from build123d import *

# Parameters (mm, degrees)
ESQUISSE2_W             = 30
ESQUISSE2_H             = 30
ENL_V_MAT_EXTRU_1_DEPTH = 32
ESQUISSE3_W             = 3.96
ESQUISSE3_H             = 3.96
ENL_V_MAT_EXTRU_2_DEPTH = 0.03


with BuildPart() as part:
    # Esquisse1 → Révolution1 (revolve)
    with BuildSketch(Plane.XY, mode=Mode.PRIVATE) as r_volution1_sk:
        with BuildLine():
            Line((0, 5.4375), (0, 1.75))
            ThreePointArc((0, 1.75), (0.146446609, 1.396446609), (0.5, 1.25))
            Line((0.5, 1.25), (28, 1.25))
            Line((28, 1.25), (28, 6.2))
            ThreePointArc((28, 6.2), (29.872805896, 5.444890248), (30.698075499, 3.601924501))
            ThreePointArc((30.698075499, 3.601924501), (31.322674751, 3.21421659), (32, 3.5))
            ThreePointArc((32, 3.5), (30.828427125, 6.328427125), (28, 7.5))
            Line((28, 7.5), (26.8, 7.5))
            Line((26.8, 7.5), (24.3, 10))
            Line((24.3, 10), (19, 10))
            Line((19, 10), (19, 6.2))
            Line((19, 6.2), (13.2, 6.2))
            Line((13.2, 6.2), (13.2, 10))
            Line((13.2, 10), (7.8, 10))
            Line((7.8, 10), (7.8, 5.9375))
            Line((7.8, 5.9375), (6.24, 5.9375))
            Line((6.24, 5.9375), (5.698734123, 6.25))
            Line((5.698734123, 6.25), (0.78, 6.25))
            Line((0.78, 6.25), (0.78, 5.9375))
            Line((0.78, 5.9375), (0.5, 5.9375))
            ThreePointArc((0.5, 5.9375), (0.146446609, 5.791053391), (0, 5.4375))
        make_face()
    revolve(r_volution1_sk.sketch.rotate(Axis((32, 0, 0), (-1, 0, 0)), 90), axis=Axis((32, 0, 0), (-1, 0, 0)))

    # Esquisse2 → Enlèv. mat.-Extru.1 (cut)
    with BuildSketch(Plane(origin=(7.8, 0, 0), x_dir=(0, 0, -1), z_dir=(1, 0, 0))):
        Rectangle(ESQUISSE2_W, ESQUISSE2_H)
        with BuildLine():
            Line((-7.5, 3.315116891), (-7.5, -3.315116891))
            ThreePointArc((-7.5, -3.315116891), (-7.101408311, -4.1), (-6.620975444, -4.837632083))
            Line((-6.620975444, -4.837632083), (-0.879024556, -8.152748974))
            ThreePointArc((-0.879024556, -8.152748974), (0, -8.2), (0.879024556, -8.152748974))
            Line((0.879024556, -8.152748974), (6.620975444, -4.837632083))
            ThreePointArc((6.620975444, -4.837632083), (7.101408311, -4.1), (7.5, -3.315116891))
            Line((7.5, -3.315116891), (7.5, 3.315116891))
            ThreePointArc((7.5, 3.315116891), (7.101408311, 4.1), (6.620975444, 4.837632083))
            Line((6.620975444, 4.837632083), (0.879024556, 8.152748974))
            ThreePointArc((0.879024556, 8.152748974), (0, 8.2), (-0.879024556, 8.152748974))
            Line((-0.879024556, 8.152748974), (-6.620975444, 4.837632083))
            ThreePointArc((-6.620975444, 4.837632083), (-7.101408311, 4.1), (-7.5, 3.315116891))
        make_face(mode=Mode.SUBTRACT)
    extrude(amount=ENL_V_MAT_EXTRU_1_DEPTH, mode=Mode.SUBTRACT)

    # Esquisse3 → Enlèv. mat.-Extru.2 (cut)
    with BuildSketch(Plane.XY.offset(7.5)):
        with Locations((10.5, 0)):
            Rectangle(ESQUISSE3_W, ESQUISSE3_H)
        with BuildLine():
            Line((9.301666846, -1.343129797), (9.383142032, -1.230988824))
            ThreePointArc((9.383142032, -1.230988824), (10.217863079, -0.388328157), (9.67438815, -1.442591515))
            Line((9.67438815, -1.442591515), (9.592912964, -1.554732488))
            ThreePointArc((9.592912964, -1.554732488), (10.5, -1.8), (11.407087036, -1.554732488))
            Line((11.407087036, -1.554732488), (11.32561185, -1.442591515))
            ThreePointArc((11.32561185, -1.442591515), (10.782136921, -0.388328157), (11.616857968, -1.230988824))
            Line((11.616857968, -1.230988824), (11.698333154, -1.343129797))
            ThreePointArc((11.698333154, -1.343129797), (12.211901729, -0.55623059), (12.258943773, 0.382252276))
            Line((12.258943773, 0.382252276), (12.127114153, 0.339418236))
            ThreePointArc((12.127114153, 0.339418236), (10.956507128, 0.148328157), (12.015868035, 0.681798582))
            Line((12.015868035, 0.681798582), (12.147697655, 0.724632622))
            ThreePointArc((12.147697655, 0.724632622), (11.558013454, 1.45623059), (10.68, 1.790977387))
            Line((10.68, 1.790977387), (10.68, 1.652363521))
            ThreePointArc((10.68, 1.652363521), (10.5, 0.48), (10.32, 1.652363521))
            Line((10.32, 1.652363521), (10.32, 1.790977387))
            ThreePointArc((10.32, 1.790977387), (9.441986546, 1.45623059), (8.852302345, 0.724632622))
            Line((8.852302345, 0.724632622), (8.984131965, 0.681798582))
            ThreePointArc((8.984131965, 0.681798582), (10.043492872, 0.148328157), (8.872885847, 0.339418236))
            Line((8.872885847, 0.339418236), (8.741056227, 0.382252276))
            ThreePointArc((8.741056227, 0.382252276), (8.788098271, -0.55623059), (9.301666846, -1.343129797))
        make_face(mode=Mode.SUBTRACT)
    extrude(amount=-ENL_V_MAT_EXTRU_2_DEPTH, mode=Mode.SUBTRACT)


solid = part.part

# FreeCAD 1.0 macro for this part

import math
import FreeCAD as App
import Part
import Sketcher

V = App.Vector
Q = App.Units.Quantity


def add_polygon(sketch, points):
    """Adds a closed chain of lines whose ends are joined by coincident constraints."""
    first, n = sketch.GeometryCount, len(points)
    for a, b in zip(points, points[1:] + points[:1]):
        sketch.addGeometry(Part.LineSegment(App.Vector(*a, 0), App.Vector(*b, 0)), False)
    for i in range(n):
        sketch.addConstraint(Sketcher.Constraint("Coincident", first + i, 2, first + (i + 1) % n, 1))

doc = App.newDocument("Part")
params = doc.addObject("Spreadsheet::Sheet", "Params")
for row, (alias, value) in enumerate([
    ("sketch1_radius", "4 mm"),
    ("sketch1_radius2", "0.5 mm"),
    ("sketch1_radius3", "2.7 mm"),
    ("sketch1_radius4", "0.8 mm"),
    ("sketch1_width", "27.5 mm"),
    ("revolution_angle", "360 deg"),
    ("sketch2_radius", "8.2 mm"),
    ("sketch2_width", "30 mm"),
    ("pocket1_length", "32 mm"),
    ("sketch3_radius", "1.8 mm"),
    ("sketch3_radius2", "0.6 mm"),
    ("sketch3_width", "3.96 mm"),
    ("pocket2_length", "0.03 mm"),
], start=1):
    params.set(f"A{row}", alias)
    params.set(f"B{row}", "=" + value)
    params.setAlias(f"B{row}", alias)

body = doc.addObject("PartDesign::Body", "Body")

sketch1 = body.newObject("Sketcher::SketchObject", "Sketch")
sketch1.AttachmentSupport = (doc.getObject("XY_Plane"), [""])
sketch1.MapMode = "FlatFace"
sketch1.addGeometry([
    Part.LineSegment(V(0, 5.4375, 0), V(0, 1.75, 0)),
    Part.ArcOfCircle(Part.Circle(V(0.5, 1.75, 0), V(0, 0, 1), 0.5), math.radians(180), math.radians(270)),
    Part.LineSegment(V(0.5, 1.25, 0), V(28, 1.25, 0)),
    Part.LineSegment(V(28, 1.25, 0), V(28, 6.2, 0)),
    Part.ArcOfCircle(Part.Circle(V(28, 3.5, 0), V(0, 0, 1), 2.7), math.radians(2.163419), math.radians(90)),
    Part.ArcOfCircle(Part.Circle(V(31.385114, 4.011776, 0), V(0, 0, 1), 0.8), math.radians(-149.181869), math.radians(-39.770965)),
    Part.ArcOfCircle(Part.Circle(V(28, 3.5, 0), V(0, 0, 1), 4), math.radians(0), math.radians(90)),
    Part.LineSegment(V(28, 7.5, 0), V(26.8, 7.5, 0)),
    Part.LineSegment(V(26.8, 7.5, 0), V(24.3, 10, 0)),
    Part.LineSegment(V(24.3, 10, 0), V(19, 10, 0)),
    Part.LineSegment(V(19, 10, 0), V(19, 6.2, 0)),
    Part.LineSegment(V(19, 6.2, 0), V(13.2, 6.2, 0)),
    Part.LineSegment(V(13.2, 6.2, 0), V(13.2, 10, 0)),
    Part.LineSegment(V(13.2, 10, 0), V(7.8, 10, 0)),
    Part.LineSegment(V(7.8, 10, 0), V(7.8, 5.9375, 0)),
    Part.LineSegment(V(7.8, 5.9375, 0), V(6.24, 5.9375, 0)),
    Part.LineSegment(V(6.24, 5.9375, 0), V(5.698734, 6.25, 0)),
    Part.LineSegment(V(5.698734, 6.25, 0), V(0.78, 6.25, 0)),
    Part.LineSegment(V(0.78, 6.25, 0), V(0.78, 5.9375, 0)),
    Part.LineSegment(V(0.78, 5.9375, 0), V(0.5, 5.9375, 0)),
    Part.ArcOfCircle(Part.Circle(V(0.5, 5.4375, 0), V(0, 0, 1), 0.5), math.radians(90), math.radians(180)),
], False)
sketch1.addConstraint([
    Sketcher.Constraint("Tangent", 0, 2, 1, 1),
    Sketcher.Constraint("Tangent", 1, 2, 2, 1),
    Sketcher.Constraint("Coincident", 2, 2, 3, 1),
    Sketcher.Constraint("Coincident", 3, 2, 4, 2),
    Sketcher.Constraint("Coincident", 4, 1, 5, 1),
    Sketcher.Constraint("Coincident", 5, 2, 6, 1),
    Sketcher.Constraint("Tangent", 6, 2, 7, 1),
    Sketcher.Constraint("Coincident", 7, 2, 8, 1),
    Sketcher.Constraint("Coincident", 8, 2, 9, 1),
    Sketcher.Constraint("Coincident", 9, 2, 10, 1),
    Sketcher.Constraint("Coincident", 10, 2, 11, 1),
    Sketcher.Constraint("Coincident", 11, 2, 12, 1),
    Sketcher.Constraint("Coincident", 12, 2, 13, 1),
    Sketcher.Constraint("Coincident", 13, 2, 14, 1),
    Sketcher.Constraint("Coincident", 14, 2, 15, 1),
    Sketcher.Constraint("Coincident", 15, 2, 16, 1),
    Sketcher.Constraint("Coincident", 16, 2, 17, 1),
    Sketcher.Constraint("Coincident", 17, 2, 18, 1),
    Sketcher.Constraint("Coincident", 18, 2, 19, 1),
    Sketcher.Constraint("Tangent", 19, 2, 20, 1),
    Sketcher.Constraint("Tangent", 20, 2, 0, 1),
    Sketcher.Constraint("Vertical", 0),
    Sketcher.Constraint("Horizontal", 2),
    Sketcher.Constraint("Vertical", 3),
    Sketcher.Constraint("Horizontal", 7),
    Sketcher.Constraint("Horizontal", 9),
    Sketcher.Constraint("Vertical", 10),
    Sketcher.Constraint("Horizontal", 11),
    Sketcher.Constraint("Vertical", 12),
    Sketcher.Constraint("Horizontal", 13),
    Sketcher.Constraint("Vertical", 14),
    Sketcher.Constraint("Horizontal", 15),
    Sketcher.Constraint("Horizontal", 17),
    Sketcher.Constraint("Vertical", 18),
    Sketcher.Constraint("Horizontal", 19),
    Sketcher.Constraint("Coincident", 6, 3, 4, 3),
    Sketcher.Constraint("Equal", 1, 20),
    Sketcher.Constraint("PointOnObject", 0, 2, -2),
    Sketcher.Constraint("Horizontal", 6, 3, 5, 2),
    Sketcher.Constraint("Horizontal", 3, 2, 10, 2),
    Sketcher.Constraint("Horizontal", 9, 2, 12, 2),
    Sketcher.Constraint("Horizontal", 15, 2, 18, 2),
    Sketcher.Constraint("Vertical", 6, 3, 2, 2),
    Sketcher.Constraint("Radius", 6, 4.0),
    Sketcher.Constraint("Radius", 1, 0.5),
    Sketcher.Constraint("Radius", 4, 2.7),
    Sketcher.Constraint("Radius", 5, 0.8),
    Sketcher.Constraint("Angle", 8, Q("135 deg")),
    Sketcher.Constraint("Angle", 16, Q("150 deg")),
    Sketcher.Constraint("DistanceX", 2, 1, 2, 2, 27.5),
    Sketcher.Constraint("DistanceX", 7, 2, 7, 1, 1.2),
    Sketcher.Constraint("DistanceX", 9, 2, 9, 1, 5.3),
    Sketcher.Constraint("DistanceX", 11, 2, 11, 1, 5.8),
    Sketcher.Constraint("DistanceX", 13, 2, 13, 1, 5.4),
    Sketcher.Constraint("DistanceY", 10, 2, 10, 1, 3.8),
    Sketcher.Constraint("DistanceY", -1, 1, 8, 2, 10.0),
    Sketcher.Constraint("DistanceY", 1, 2, 17, 2, 5.0),
    Sketcher.Constraint("DistanceX", 15, 2, 15, 1, 1.56),
    Sketcher.Constraint("DistanceX", 19, 2, 19, 1, 0.28),
    Sketcher.Constraint("DistanceY", 3, 1, 3, 2, 4.95),
    Sketcher.Constraint("Distance", 16, 0.625),
    Sketcher.Constraint("DistanceX", 4, 1, 5, 3, 0.687038),
])
sketch1.setExpression("Constraints[43]", "Params.sketch1_radius")
sketch1.setExpression("Constraints[44]", "Params.sketch1_radius2")
sketch1.setExpression("Constraints[45]", "Params.sketch1_radius3")
sketch1.setExpression("Constraints[46]", "Params.sketch1_radius4")
sketch1.setExpression("Constraints[49]", "Params.sketch1_width")
revolution = body.newObject("PartDesign::Revolution", "Revolution")
revolution.Profile = sketch1
revolution.ReferenceAxis = (sketch1, ["H_Axis"])
revolution.setExpression("Angle", "Params.revolution_angle")

sketch2 = body.newObject("Sketcher::SketchObject", "Sketch001")
sketch2.AttachmentSupport = (doc.getObject("YZ_Plane"), [""])
sketch2.MapMode = "FlatFace"
sketch2.AttachmentOffset = App.Placement(V(0, 0, 7.8), App.Rotation())
add_polygon(sketch2, [(15, 15), (-15, 15), (-15, -15), (15, -15)])
sketch2.addGeometry(Part.LineSegment(V(-3.315117, 7.5, 0), V(3.315117, 7.5, 0)), False)
sketch2.addGeometry(Part.ArcOfCircle(Part.Circle(V(0, 0, 0), V(0, 0, 1), 8.2), math.radians(53.846176), math.radians(66.153824)), False)
sketch2.addGeometry(Part.LineSegment(V(4.837632, 6.620975, 0), V(8.152749, 0.879025, 0)), False)
sketch2.addGeometry(Part.ArcOfCircle(Part.Circle(V(0, 0, 0), V(0, 0, 1), 8.2), math.radians(-6.153824), math.radians(6.153824)), False)
sketch2.addGeometry(Part.LineSegment(V(8.152749, -0.879025, 0), V(4.837632, -6.620975, 0)), False)
sketch2.addGeometry(Part.ArcOfCircle(Part.Circle(V(0, 0, 0), V(0, 0, 1), 8.2), math.radians(-66.153824), math.radians(-53.846176)), False)
sketch2.addGeometry(Part.LineSegment(V(3.315117, -7.5, 0), V(-3.315117, -7.5, 0)), False)
sketch2.addGeometry(Part.ArcOfCircle(Part.Circle(V(0, 0, 0), V(0, 0, 1), 8.2), math.radians(-126.153824), math.radians(-113.846176)), False)
sketch2.addGeometry(Part.LineSegment(V(-4.837632, -6.620975, 0), V(-8.152749, -0.879025, 0)), False)
sketch2.addGeometry(Part.ArcOfCircle(Part.Circle(V(0, 0, 0), V(0, 0, 1), 8.2), math.radians(173.846176), math.radians(186.153824)), False)
sketch2.addGeometry(Part.LineSegment(V(-8.152749, 0.879025, 0), V(-4.837632, 6.620975, 0)), False)
sketch2.addGeometry(Part.ArcOfCircle(Part.Circle(V(0, 0, 0), V(0, 0, 1), 8.2), math.radians(113.846176), math.radians(126.153824)), False)
sketch2.addConstraint([
    Sketcher.Constraint("Coincident", 4, 2, 5, 2),
    Sketcher.Constraint("Coincident", 5, 1, 6, 1),
    Sketcher.Constraint("Coincident", 6, 2, 7, 2),
    Sketcher.Constraint("Coincident", 7, 1, 8, 1),
    Sketcher.Constraint("Coincident", 8, 2, 9, 2),
    Sketcher.Constraint("Coincident", 9, 1, 10, 1),
    Sketcher.Constraint("Coincident", 10, 2, 11, 2),
    Sketcher.Constraint("Coincident", 11, 1, 12, 1),
    Sketcher.Constraint("Coincident", 12, 2, 13, 2),
    Sketcher.Constraint("Coincident", 13, 1, 14, 1),
    Sketcher.Constraint("Coincident", 14, 2, 15, 2),
    Sketcher.Constraint("Coincident", 15, 1, 4, 1),
    Sketcher.Constraint("Horizontal", 0),
    Sketcher.Constraint("Vertical", 1),
    Sketcher.Constraint("Horizontal", 2),
    Sketcher.Constraint("Vertical", 3),
    Sketcher.Constraint("Horizontal", 4),
    Sketcher.Constraint("Horizontal", 10),
    Sketcher.Constraint("Coincident", 5, 3, -1, 1),
    Sketcher.Constraint("Coincident", 7, 3, -1, 1),
    Sketcher.Constraint("Coincident", 9, 3, -1, 1),
    Sketcher.Constraint("Coincident", 11, 3, -1, 1),
    Sketcher.Constraint("Coincident", 13, 3, -1, 1),
    Sketcher.Constraint("Coincident", 15, 3, -1, 1),
    Sketcher.Constraint("Equal", 5, 7),
    Sketcher.Constraint("Equal", 7, 9),
    Sketcher.Constraint("Equal", 9, 11),
    Sketcher.Constraint("Equal", 11, 13),
    Sketcher.Constraint("Equal", 13, 15),
    Sketcher.Constraint("Symmetric", 0, 2, 2, 2, -1, 1),
    Sketcher.Constraint("Parallel", 6, 12),
    Sketcher.Constraint("Parallel", 8, 14),
    Sketcher.Constraint("Horizontal", 8, 2, 11, 1),
    Sketcher.Constraint("Horizontal", 7, 1, 12, 2),
    Sketcher.Constraint("Horizontal", 6, 2, 13, 1),
    Sketcher.Constraint("Vertical", 6, 2, 7, 1),
    Sketcher.Constraint("Vertical", 4, 2, 9, 1),
    Sketcher.Constraint("Equal", 2, 1),
    Sketcher.Constraint("Radius", 5, 8.2),
    Sketcher.Constraint("DistanceX", 0, 2, 0, 1, 30.0),
    Sketcher.Constraint("Angle", 6, Q("-60 deg")),
    Sketcher.Constraint("DistanceY", -1, 1, 4, 2, 7.5),
    Sketcher.Constraint("DistanceY", 7, 1, 5, 1, 7.5),
])
sketch2.setExpression("Constraints[42]", "Params.sketch2_radius")
sketch2.setExpression("Constraints[43]", "Params.sketch2_width")
pocket1 = body.newObject("PartDesign::Pocket", "Pocket")
pocket1.Profile = sketch2
pocket1.setExpression("Length", "Params.pocket1_length")
pocket1.Reversed = True

sketch3 = body.newObject("Sketcher::SketchObject", "Sketch002")
sketch3.AttachmentSupport = (doc.getObject("XY_Plane"), [""])
sketch3.MapMode = "FlatFace"
sketch3.AttachmentOffset = App.Placement(V(0, 0, 7.5), App.Rotation())
add_polygon(sketch3, [(8.52, 1.98), (8.52, -1.98), (12.48, -1.98), (12.48, 1.98)])
sketch3.addGeometry(Part.LineSegment(V(9.383142, -1.230989, 0), V(9.301667, -1.34313, 0)), False)
sketch3.addGeometry(Part.ArcOfCircle(Part.Circle(V(10.5, 0, 0), V(0, 0, 1), 1.8), math.radians(167.73917), math.radians(228.26083)), False)
sketch3.addGeometry(Part.LineSegment(V(8.741056, 0.382252, 0), V(8.872886, 0.339418, 0)), False)
sketch3.addGeometry(Part.ArcOfCircle(Part.Circle(V(9.472859, 0.333738, 0), V(0, 0, 1), 0.6), math.radians(179.457603), math.radians(504.542397)), False)
sketch3.addGeometry(Part.LineSegment(V(8.984132, 0.681799, 0), V(8.852302, 0.724633, 0)), False)
sketch3.addGeometry(Part.ArcOfCircle(Part.Circle(V(10.5, 0, 0), V(0, 0, 1), 1.8), math.radians(95.73917), math.radians(156.26083)), False)
sketch3.addGeometry(Part.LineSegment(V(10.32, 1.790977, 0), V(10.32, 1.652364, 0)), False)
sketch3.addGeometry(Part.ArcOfCircle(Part.Circle(V(10.5, 1.08, 0), V(0, 0, 1), 0.6), math.radians(107.457603), math.radians(432.542397)), False)
sketch3.addGeometry(Part.LineSegment(V(10.68, 1.652364, 0), V(10.68, 1.790977, 0)), False)
sketch3.addGeometry(Part.ArcOfCircle(Part.Circle(V(10.5, 0, 0), V(0, 0, 1), 1.8), math.radians(23.73917), math.radians(84.26083)), False)
sketch3.addGeometry(Part.LineSegment(V(12.147698, 0.724633, 0), V(12.015868, 0.681799, 0)), False)
sketch3.addGeometry(Part.ArcOfCircle(Part.Circle(V(11.527141, 0.333738, 0), V(0, 0, 1), 0.6), math.radians(35.457603), math.radians(360.542397)), False)
sketch3.addGeometry(Part.LineSegment(V(12.127114, 0.339418, 0), V(12.258944, 0.382252, 0)), False)
sketch3.addGeometry(Part.ArcOfCircle(Part.Circle(V(10.5, 0, 0), V(0, 0, 1), 1.8), math.radians(-48.26083), math.radians(12.26083)), False)
sketch3.addGeometry(Part.LineSegment(V(11.698333, -1.34313, 0), V(11.616858, -1.230989, 0)), False)
sketch3.addGeometry(Part.ArcOfCircle(Part.Circle(V(11.134808, -0.873738, 0), V(0, 0, 1), 0.6), math.radians(-36.542397), math.radians(288.542397)), False)
sketch3.addGeometry(Part.LineSegment(V(11.325612, -1.442592, 0), V(11.407087, -1.554732, 0)), False)
sketch3.addGeometry(Part.ArcOfCircle(Part.Circle(V(10.5, 0, 0), V(0, 0, 1), 1.8), math.radians(-120.26083), math.radians(-59.73917)), False)
sketch3.addGeometry(Part.LineSegment(V(9.592913, -1.554732, 0), V(9.674388, -1.442592, 0)), False)
sketch3.addGeometry(Part.ArcOfCircle(Part.Circle(V(9.865192, -0.873738, 0), V(0, 0, 1), 0.6), math.radians(-108.542397), math.radians(216.542397)), False)
sketch3.addConstraint([
    Sketcher.Constraint("Coincident", 4, 2, 5, 2),
    Sketcher.Constraint("Coincident", 5, 1, 6, 1),
    Sketcher.Constraint("Coincident", 6, 2, 7, 1),
    Sketcher.Constraint("Coincident", 7, 2, 8, 1),
    Sketcher.Constraint("Coincident", 8, 2, 9, 2),
    Sketcher.Constraint("Coincident", 9, 1, 10, 1),
    Sketcher.Constraint("Coincident", 10, 2, 11, 1),
    Sketcher.Constraint("Coincident", 11, 2, 12, 1),
    Sketcher.Constraint("Coincident", 12, 2, 13, 2),
    Sketcher.Constraint("Coincident", 13, 1, 14, 1),
    Sketcher.Constraint("Coincident", 14, 2, 15, 1),
    Sketcher.Constraint("Coincident", 15, 2, 16, 1),
    Sketcher.Constraint("Coincident", 16, 2, 17, 2),
    Sketcher.Constraint("Coincident", 17, 1, 18, 1),
    Sketcher.Constraint("Coincident", 18, 2, 19, 1),
    Sketcher.Constraint("Coincident", 19, 2, 20, 1),
    Sketcher.Constraint("Coincident", 20, 2, 21, 2),
    Sketcher.Constraint("Coincident", 21, 1, 22, 1),
    Sketcher.Constraint("Coincident", 22, 2, 23, 1),
    Sketcher.Constraint("Coincident", 23, 2, 4, 1),
    Sketcher.Constraint("Vertical", 0),
    Sketcher.Constraint("Horizontal", 1),
    Sketcher.Constraint("Vertical", 2),
    Sketcher.Constraint("Horizontal", 3),
    Sketcher.Constraint("Vertical", 10),
    Sketcher.Constraint("Vertical", 12),
    Sketcher.Constraint("Coincident", 9, 3, 5, 3),
    Sketcher.Constraint("Coincident", 13, 3, 5, 3),
    Sketcher.Constraint("Coincident", 17, 3, 5, 3),
    Sketcher.Constraint("Coincident", 21, 3, 5, 3),
    Sketcher.Constraint("Equal", 5, 9),
    Sketcher.Constraint("Equal", 7, 11),
    Sketcher.Constraint("Equal", 9, 13),
    Sketcher.Constraint("Equal", 11, 15),
    Sketcher.Constraint("Equal", 13, 17),
    Sketcher.Constraint("Equal", 15, 19),
    Sketcher.Constraint("Equal", 17, 21),
    Sketcher.Constraint("Equal", 19, 23),
    Sketcher.Constraint("PointOnObject", 5, 3, -1),
    Sketcher.Constraint("Parallel", 6, 8),
    Sketcher.Constraint("Parallel", 14, 16),
    Sketcher.Constraint("Parallel", 18, 20),
    Sketcher.Constraint("Parallel", 4, 22),
    Sketcher.Constraint("Horizontal", 7, 3, 15, 3),
    Sketcher.Constraint("Horizontal", 19, 3, 23, 3),
    Sketcher.Constraint("Horizontal", 10, 2, 11, 2),
    Sketcher.Constraint("Horizontal", 9, 1, 12, 2),
    Sketcher.Constraint("Horizontal", 8, 2, 13, 1),
    Sketcher.Constraint("Horizontal", 7, 2, 14, 2),
    Sketcher.Constraint("Horizontal", 6, 2, 15, 2),
    Sketcher.Constraint("Horizontal", 4, 2, 17, 1),
    Sketcher.Constraint("Horizontal", 20, 2, 21, 1),
    Sketcher.Constraint("Horizontal", 19, 2, 22, 2),
    Sketcher.Constraint("Equal", 3, 0),
    Sketcher.Constraint("Equal", 4, 6),
    Sketcher.Constraint("Equal", 6, 8),
    Sketcher.Constraint("Equal", 8, 14),
    Sketcher.Constraint("Equal", 16, 18),
    Sketcher.Constraint("Equal", 18, 20),
    Sketcher.Constraint("Radius", 5, 1.8),
    Sketcher.Constraint("Radius", 7, 0.6),
    Sketcher.Constraint("Angle", 4, Q("-126 deg")),
    Sketcher.Constraint("Angle", 6, Q("-18 deg")),
    Sketcher.Constraint("DistanceX", 1, 1, 1, 2, 3.96),
    Sketcher.Constraint("DistanceX", -1, 1, 5, 3, 10.5),
    Sketcher.Constraint("DistanceY", 11, 3, 2, 2, 0.9),
    Sketcher.Constraint("DistanceY", -1, 1, 11, 3, 1.08),
    Sketcher.Constraint("DistanceX", -1, 1, 0, 2, 8.52),
    Sketcher.Constraint("DistanceX", -1, 1, 9, 1, 10.32),
    Sketcher.Constraint("DistanceY", -1, 1, 7, 2, 0.681799),
    Sketcher.Constraint("DistanceX", 21, 1, 19, 2, 1.732699),
    Sketcher.Constraint("DistanceX", -1, 1, 7, 3, 9.472859),
    Sketcher.Constraint("DistanceY", -1, 1, 7, 3, 0.333738),
    Sketcher.Constraint("DistanceX", -1, 1, 19, 3, 11.134808),
])
sketch3.setExpression("Constraints[63]", "Params.sketch3_radius")
sketch3.setExpression("Constraints[64]", "Params.sketch3_radius2")
sketch3.setExpression("Constraints[67]", "Params.sketch3_width")
pocket2 = body.newObject("PartDesign::Pocket", "Pocket001")
pocket2.Profile = sketch3
pocket2.setExpression("Length", "Params.pocket2_length")

doc.recompute()
